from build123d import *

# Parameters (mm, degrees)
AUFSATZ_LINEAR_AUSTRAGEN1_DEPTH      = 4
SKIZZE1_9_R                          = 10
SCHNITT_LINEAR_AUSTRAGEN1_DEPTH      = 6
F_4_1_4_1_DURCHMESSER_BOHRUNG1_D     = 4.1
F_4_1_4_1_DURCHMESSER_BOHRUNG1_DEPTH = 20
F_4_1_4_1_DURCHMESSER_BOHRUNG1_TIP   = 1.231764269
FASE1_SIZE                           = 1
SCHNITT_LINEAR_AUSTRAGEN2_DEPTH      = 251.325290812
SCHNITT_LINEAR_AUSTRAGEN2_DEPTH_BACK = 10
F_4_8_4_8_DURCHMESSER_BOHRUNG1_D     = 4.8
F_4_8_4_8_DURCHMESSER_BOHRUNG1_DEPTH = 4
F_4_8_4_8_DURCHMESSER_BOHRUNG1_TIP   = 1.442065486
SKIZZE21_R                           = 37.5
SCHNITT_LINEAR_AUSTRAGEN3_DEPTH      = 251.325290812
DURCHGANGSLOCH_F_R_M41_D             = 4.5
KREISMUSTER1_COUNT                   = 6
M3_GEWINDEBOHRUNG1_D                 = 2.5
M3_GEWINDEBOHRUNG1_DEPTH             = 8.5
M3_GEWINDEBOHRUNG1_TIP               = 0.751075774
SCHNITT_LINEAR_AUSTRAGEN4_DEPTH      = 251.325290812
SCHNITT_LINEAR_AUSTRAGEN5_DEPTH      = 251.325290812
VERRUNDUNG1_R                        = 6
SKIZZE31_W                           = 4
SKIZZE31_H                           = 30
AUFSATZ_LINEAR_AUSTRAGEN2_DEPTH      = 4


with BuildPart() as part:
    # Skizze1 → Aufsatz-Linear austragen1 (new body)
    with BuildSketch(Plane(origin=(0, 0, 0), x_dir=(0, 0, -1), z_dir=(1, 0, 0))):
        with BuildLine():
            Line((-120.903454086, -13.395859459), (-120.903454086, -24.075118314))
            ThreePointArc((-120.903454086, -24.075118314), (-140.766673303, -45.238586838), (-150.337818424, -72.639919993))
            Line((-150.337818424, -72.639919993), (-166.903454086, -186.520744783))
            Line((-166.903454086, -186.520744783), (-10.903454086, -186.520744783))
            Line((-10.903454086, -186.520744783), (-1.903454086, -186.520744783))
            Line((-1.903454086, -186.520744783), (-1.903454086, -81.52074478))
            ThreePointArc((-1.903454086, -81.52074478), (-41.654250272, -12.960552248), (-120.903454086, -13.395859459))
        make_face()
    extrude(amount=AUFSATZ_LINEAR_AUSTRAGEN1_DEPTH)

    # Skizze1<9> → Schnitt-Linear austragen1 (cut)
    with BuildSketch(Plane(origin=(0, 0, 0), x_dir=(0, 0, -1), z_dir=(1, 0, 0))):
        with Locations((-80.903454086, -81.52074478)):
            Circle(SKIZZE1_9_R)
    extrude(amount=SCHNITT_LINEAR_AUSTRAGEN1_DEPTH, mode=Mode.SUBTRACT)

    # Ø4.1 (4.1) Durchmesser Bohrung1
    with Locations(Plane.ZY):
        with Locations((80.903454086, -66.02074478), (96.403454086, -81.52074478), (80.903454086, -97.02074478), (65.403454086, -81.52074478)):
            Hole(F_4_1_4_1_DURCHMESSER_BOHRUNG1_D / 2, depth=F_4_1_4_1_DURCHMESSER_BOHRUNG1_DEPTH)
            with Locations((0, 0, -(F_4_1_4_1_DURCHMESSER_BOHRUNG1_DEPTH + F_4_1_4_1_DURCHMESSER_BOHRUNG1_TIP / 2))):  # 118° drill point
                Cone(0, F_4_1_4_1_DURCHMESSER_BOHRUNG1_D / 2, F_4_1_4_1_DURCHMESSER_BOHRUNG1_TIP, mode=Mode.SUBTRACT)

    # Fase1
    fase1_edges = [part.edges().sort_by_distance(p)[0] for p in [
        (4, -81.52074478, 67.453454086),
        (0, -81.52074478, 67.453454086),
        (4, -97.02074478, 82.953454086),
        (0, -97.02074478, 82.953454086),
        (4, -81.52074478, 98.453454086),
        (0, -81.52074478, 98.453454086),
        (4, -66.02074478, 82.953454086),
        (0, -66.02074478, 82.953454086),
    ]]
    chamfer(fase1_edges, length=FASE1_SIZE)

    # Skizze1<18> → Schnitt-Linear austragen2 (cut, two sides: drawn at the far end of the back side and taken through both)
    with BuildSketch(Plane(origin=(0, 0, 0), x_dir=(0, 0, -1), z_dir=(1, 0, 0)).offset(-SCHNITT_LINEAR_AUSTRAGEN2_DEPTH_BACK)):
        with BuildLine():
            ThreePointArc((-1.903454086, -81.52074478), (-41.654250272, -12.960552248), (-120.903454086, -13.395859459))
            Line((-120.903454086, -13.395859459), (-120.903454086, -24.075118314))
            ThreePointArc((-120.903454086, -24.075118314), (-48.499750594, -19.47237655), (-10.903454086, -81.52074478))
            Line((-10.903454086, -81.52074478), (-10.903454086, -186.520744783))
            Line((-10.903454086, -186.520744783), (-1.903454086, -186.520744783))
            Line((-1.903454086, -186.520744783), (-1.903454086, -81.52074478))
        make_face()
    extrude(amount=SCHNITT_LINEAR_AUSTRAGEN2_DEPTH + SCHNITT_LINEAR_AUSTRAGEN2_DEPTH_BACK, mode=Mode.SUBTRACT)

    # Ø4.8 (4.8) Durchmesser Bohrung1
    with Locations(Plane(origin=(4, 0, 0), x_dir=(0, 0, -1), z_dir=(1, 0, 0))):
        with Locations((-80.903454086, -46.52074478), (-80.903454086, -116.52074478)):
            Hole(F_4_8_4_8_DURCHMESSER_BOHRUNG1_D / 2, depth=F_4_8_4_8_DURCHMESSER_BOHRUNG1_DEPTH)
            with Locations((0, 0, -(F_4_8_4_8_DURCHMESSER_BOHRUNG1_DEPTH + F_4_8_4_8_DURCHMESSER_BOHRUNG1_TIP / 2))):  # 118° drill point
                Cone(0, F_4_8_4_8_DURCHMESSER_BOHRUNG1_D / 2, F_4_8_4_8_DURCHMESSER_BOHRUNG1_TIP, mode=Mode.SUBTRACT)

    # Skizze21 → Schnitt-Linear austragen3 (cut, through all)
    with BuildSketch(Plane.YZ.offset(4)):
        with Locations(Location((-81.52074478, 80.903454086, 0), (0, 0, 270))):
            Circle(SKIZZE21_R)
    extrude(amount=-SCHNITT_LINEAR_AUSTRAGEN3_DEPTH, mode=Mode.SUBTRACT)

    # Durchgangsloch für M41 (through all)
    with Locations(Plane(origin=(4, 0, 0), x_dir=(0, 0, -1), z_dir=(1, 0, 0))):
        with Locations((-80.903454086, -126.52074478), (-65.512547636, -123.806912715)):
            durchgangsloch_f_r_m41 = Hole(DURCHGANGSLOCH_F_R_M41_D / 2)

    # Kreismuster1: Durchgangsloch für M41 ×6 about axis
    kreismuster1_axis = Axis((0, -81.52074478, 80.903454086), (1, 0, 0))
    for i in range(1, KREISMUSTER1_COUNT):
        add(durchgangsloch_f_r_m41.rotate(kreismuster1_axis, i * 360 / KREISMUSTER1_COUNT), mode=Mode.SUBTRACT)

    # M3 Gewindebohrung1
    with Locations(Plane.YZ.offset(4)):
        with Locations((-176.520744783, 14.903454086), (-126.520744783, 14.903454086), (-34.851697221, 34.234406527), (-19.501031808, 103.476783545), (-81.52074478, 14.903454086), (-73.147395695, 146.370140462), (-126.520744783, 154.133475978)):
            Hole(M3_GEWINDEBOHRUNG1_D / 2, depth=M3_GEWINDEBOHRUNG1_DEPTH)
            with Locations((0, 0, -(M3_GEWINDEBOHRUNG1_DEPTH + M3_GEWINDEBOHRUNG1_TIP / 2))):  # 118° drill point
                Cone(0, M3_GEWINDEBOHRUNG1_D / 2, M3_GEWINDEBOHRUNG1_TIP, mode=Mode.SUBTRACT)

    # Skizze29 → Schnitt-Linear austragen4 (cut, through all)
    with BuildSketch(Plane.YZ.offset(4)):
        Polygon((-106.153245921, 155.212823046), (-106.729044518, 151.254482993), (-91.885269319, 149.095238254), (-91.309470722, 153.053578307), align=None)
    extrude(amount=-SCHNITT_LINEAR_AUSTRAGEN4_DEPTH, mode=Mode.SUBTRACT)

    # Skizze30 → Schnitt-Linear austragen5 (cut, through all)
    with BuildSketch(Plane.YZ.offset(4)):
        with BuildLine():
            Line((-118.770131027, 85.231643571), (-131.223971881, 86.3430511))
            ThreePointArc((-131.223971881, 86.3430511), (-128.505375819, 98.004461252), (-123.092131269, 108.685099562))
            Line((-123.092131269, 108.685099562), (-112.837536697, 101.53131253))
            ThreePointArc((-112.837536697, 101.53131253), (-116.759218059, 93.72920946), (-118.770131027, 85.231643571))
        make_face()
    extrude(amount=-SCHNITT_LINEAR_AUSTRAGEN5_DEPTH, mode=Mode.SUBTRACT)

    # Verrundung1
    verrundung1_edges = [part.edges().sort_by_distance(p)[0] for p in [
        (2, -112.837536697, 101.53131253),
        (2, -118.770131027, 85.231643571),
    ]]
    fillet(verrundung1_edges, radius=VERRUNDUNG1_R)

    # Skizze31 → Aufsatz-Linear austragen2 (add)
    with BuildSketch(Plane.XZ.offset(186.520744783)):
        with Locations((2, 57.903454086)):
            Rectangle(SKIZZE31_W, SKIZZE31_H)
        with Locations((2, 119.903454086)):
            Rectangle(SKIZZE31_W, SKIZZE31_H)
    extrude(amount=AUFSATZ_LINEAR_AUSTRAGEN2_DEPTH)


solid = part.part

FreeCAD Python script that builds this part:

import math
import FreeCAD as App
import Part
import Sketcher
Q = App.Units.Quantity


def edges_at(feature, points):
    """Names of the edges that pass closest to the given points."""
    edges = feature.Shape.Edges
    near = lambda p: min(range(len(edges)), key=lambda i: edges[i].distToShape(Part.Vertex(*p))[0])
    return sorted({f"Edge{near(p) + 1}" for p in points})

doc = App.newDocument("Part")
body = doc.addObject("PartDesign::Body", "Body")

# Sketch on YZ plane
sketch1 = doc.addObject("Sketcher::SketchObject", "Sketch")
body.addObject(sketch1)
sketch1.AttachmentSupport = (doc.YZ_Plane, [""])
sketch1.MapMode = "FlatFace"
sketch1.addGeometry([
    Part.LineSegment(App.Vector(-13, 121, 0), App.Vector(-24, 121, 0)),  # 0
    Part.ArcOfCircle(Part.Circle(App.Vector(-82, 81, 0), App.Vector(0, 0, 1), 70), math.radians(35), math.radians(83)),  # 1
    Part.LineSegment(App.Vector(-73, 150, 0), App.Vector(-187, 167, 0)),  # 2
    Part.LineSegment(App.Vector(-187, 167, 0), App.Vector(-187, 2, 0)),  # 3
    Part.LineSegment(App.Vector(-187, 2, 0), App.Vector(-82, 2, 0)),  # 4
    Part.ArcOfCircle(Part.Circle(App.Vector(-82, 81, 0), App.Vector(0, 0, 1), 79), math.radians(-90), math.radians(30)),  # 5
], False)
sketch1.addConstraint([
    Sketcher.Constraint("Coincident", 0, 2, 1, 1),
    Sketcher.Constraint("Coincident", 1, 2, 2, 1),
    Sketcher.Constraint("Coincident", 2, 2, 3, 1),
    Sketcher.Constraint("Coincident", 3, 2, 4, 1),
    Sketcher.Constraint("Tangent", 4, 2, 5, 1),
    Sketcher.Constraint("Coincident", 5, 2, 0, 1),
    Sketcher.Constraint("Horizontal", 0),
    Sketcher.Constraint("Vertical", 3),
    Sketcher.Constraint("Horizontal", 4),
    Sketcher.Constraint("Coincident", 5, 3, 1, 3),
    Sketcher.Constraint("Radius", 1, Q("70 mm")),
    Sketcher.Constraint("Radius", 5, Q("79 mm")),
    Sketcher.Constraint("DistanceX", 4, 1, 4, 2, Q("105 mm")),
    Sketcher.Constraint("DistanceY", 3, 2, 3, 1, Q("165 mm")),
    Sketcher.Constraint("DistanceY", 5, 3, 0, 2, Q("40 mm")),
    Sketcher.Constraint("DistanceX", 1, 2, 0, 2, Q("48.564802 mm")),
    Sketcher.Constraint("DistanceX", 0, 2, -1, 1, Q("24.075118 mm")),
    Sketcher.Constraint("DistanceY", -1, 1, 1, 2, Q("150.337818 mm")),
])
pad1 = doc.addObject("PartDesign::Pad", "Pad")
body.addObject(pad1)
pad1.Profile = sketch1
pad1.Length = 4

# Sketch on YZ plane
sketch2 = doc.addObject("Sketcher::SketchObject", "Sketch001")
body.addObject(sketch2)
sketch2.AttachmentSupport = (doc.YZ_Plane, [""])
sketch2.MapMode = "FlatFace"
sketch2.addGeometry(Part.Circle(App.Vector(-82, 81, 0), App.Vector(0, 0, 1), 10), False)
sketch2.addConstraint([
    Sketcher.Constraint("Diameter", 0, Q("20 mm")),
    Sketcher.Constraint("DistanceX", 0, 3, -1, 1, Q("81.520745 mm")),
    Sketcher.Constraint("DistanceY", -1, 1, 0, 3, Q("80.903454 mm")),
])
pocket1 = doc.addObject("PartDesign::Pocket", "Pocket")
body.addObject(pocket1)
pocket1.Profile = sketch2
pocket1.Length = 6
pocket1.Reversed = True

# Sketch on YZ plane
sketch3 = doc.addObject("Sketcher::SketchObject", "Sketch002")
body.addObject(sketch3)
sketch3.AttachmentSupport = (doc.YZ_Plane, [""])
sketch3.MapMode = "FlatFace"
sketch3.addGeometry([
    Part.Circle(App.Vector(-66, 80.9, 0), App.Vector(0, 0, 1), 2),
    Part.Circle(App.Vector(-81.5, 96.4, 0), App.Vector(0, 0, 1), 2),
    Part.Circle(App.Vector(-97, 80.9, 0), App.Vector(0, 0, 1), 2),
    Part.Circle(App.Vector(-81.5, 65.4, 0), App.Vector(0, 0, 1), 2),
], False)
sketch3.addConstraint([
    Sketcher.Constraint("Equal", 0, 1),
    Sketcher.Constraint("Equal", 1, 2),
    Sketcher.Constraint("Equal", 2, 3),
    Sketcher.Constraint("Horizontal", 0, 3, 2, 3),
    Sketcher.Constraint("Vertical", 1, 3, 3, 3),
    Sketcher.Constraint("Diameter", 0, Q("4.1 mm")),
    Sketcher.Constraint("DistanceX", 2, 3, 0, 3, Q("31 mm")),
    Sketcher.Constraint("DistanceY", 3, 3, 1, 3, Q("31 mm")),
    Sketcher.Constraint("DistanceX", 1, 3, 0, 3, Q("15.5 mm")),
    Sketcher.Constraint("DistanceY", 0, 3, 1, 3, Q("15.5 mm")),
    Sketcher.Constraint("DistanceX", 0, 3, -1, 1, Q("66.020745 mm")),
    Sketcher.Constraint("DistanceY", -1, 1, 0, 3, Q("80.903454 mm")),
])
doc.recompute()
hole = doc.addObject("PartDesign::Hole", "Hole")
body.addObject(hole)
hole.Profile = sketch3
hole.ThreadType = "None"
hole.Diameter = 4.1
hole.DepthType = "Dimension"
hole.Depth = 20
hole.DrillPoint = "Angled"
hole.DrillPointAngle = 118
hole.Reversed = True
doc.recompute()

chamfer = doc.addObject("PartDesign::Chamfer", "Chamfer")
body.addObject(chamfer)
chamfer.Base = (hole, edges_at(hole, [
    (4, -81.521, 67.453),
    (0, -81.521, 67.453),
    (4, -97.021, 82.953),
    (0, -97.021, 82.953),
    (4, -81.521, 98.453),
    (0, -81.521, 98.453),
    (4, -66.021, 82.953),
    (0, -66.021, 82.953),
]))
chamfer.Size = 1

# Sketch on YZ plane
sketch4 = doc.addObject("Sketcher::SketchObject", "Sketch003")
body.addObject(sketch4)
sketch4.AttachmentSupport = (doc.YZ_Plane, [""])
sketch4.MapMode = "FlatFace"
sketch4.addGeometry([
    Part.ArcOfCircle(Part.Circle(App.Vector(-82, 81, 0), App.Vector(0, 0, 1), 79), math.radians(-90), math.radians(30)),  # 0
    Part.LineSegment(App.Vector(-13, 121, 0), App.Vector(-24, 121, 0)),  # 1
    Part.ArcOfCircle(Part.Circle(App.Vector(-82, 81, 0), App.Vector(0, 0, 1), 70), math.radians(-90), math.radians(35)),  # 2
    Part.LineSegment(App.Vector(-82, 11, 0), App.Vector(-187, 11, 0)),  # 3
    Part.LineSegment(App.Vector(-187, 11, 0), App.Vector(-187, 2, 0)),  # 4
    Part.LineSegment(App.Vector(-187, 2, 0), App.Vector(-82, 2, 0)),  # 5
], False)
sketch4.addConstraint([
    Sketcher.Constraint("Coincident", 0, 2, 1, 1),
    Sketcher.Constraint("Coincident", 1, 2, 2, 2),
    Sketcher.Constraint("Tangent", 2, 1, 3, 1),
    Sketcher.Constraint("Coincident", 3, 2, 4, 1),
    Sketcher.Constraint("Coincident", 4, 2, 5, 1),
    Sketcher.Constraint("Tangent", 5, 2, 0, 1),
    Sketcher.Constraint("Horizontal", 1),
    Sketcher.Constraint("Horizontal", 3),
    Sketcher.Constraint("Vertical", 4),
    Sketcher.Constraint("Horizontal", 5),
    Sketcher.Constraint("Coincident", 2, 3, 0, 3),
    Sketcher.Constraint("Radius", 0, Q("79 mm")),
    Sketcher.Constraint("Radius", 2, Q("70 mm")),
    Sketcher.Constraint("DistanceX", 3, 2, 3, 1, Q("105 mm")),
    Sketcher.Constraint("DistanceY", 0, 3, 0, 2, Q("40 mm")),
    Sketcher.Constraint("DistanceX", 0, 2, -1, 1, Q("13.395859 mm")),
    Sketcher.Constraint("DistanceY", -1, 1, 0, 3, Q("80.903454 mm")),
])
pocket2 = doc.addObject("PartDesign::Pocket", "Pocket001")
body.addObject(pocket2)
pocket2.Profile = sketch4
pocket2.Type = "ThroughAll"
pocket2.Midplane = True

# Sketch on YZ plane
sketch5 = doc.addObject("Sketcher::SketchObject", "Sketch004")
body.addObject(sketch5)
sketch5.AttachmentSupport = (doc.YZ_Plane, [""])
sketch5.MapMode = "FlatFace"
sketch5.AttachmentOffset = App.Placement(App.Vector(0, 0, 4), App.Rotation())
sketch5.addGeometry([
    Part.Circle(App.Vector(-46.5, 80.9, 0), App.Vector(0, 0, 1), 2.4),
    Part.Circle(App.Vector(-116.5, 80.9, 0), App.Vector(0, 0, 1), 2.4),
], False)
sketch5.addConstraint([
    Sketcher.Constraint("Equal", 0, 1),
    Sketcher.Constraint("Horizontal", 0, 3, 1, 3),
    Sketcher.Constraint("Diameter", 0, Q("4.8 mm")),
    Sketcher.Constraint("DistanceX", 1, 3, 0, 3, Q("70 mm")),
    Sketcher.Constraint("DistanceX", 0, 3, -1, 1, Q("46.520745 mm")),
    Sketcher.Constraint("DistanceY", -1, 1, 0, 3, Q("80.903454 mm")),
])
doc.recompute()
hole2 = doc.addObject("PartDesign::Hole", "Hole001")
body.addObject(hole2)
hole2.Profile = sketch5
hole2.ThreadType = "None"
hole2.Diameter = 4.8
hole2.DepthType = "Dimension"
hole2.Depth = 4
hole2.DrillPoint = "Angled"
hole2.DrillPointAngle = 118

# Sketch on YZ plane
sketch6 = doc.addObject("Sketcher::SketchObject", "Sketch005")
body.addObject(sketch6)
sketch6.AttachmentSupport = (doc.YZ_Plane, [""])
sketch6.MapMode = "FlatFace"
sketch6.AttachmentOffset = App.Placement(App.Vector(0, 0, 4), App.Rotation())
sketch6.addGeometry(Part.Circle(App.Vector(-82, 81, 0), App.Vector(0, 0, 1), 38), False)
sketch6.addConstraint([
    Sketcher.Constraint("Diameter", 0, Q("75 mm")),
    Sketcher.Constraint("DistanceX", 0, 3, -1, 1, Q("81.520745 mm")),
    Sketcher.Constraint("DistanceY", -1, 1, 0, 3, Q("80.903454 mm")),
])
pocket3 = doc.addObject("PartDesign::Pocket", "Pocket002")
body.addObject(pocket3)
pocket3.Profile = sketch6
pocket3.Type = "ThroughAll"

# Sketch on YZ plane
sketch7 = doc.addObject("Sketcher::SketchObject", "Sketch006")
body.addObject(sketch7)
sketch7.AttachmentSupport = (doc.YZ_Plane, [""])
sketch7.MapMode = "FlatFace"
sketch7.AttachmentOffset = App.Placement(App.Vector(0, 0, 4), App.Rotation())
sketch7.addGeometry([
    Part.Circle(App.Vector(-126.5, 80.9, 0), App.Vector(0, 0, 1), 2.2),
    Part.Circle(App.Vector(-123.8, 65.5, 0), App.Vector(0, 0, 1), 2.2),
], False)
sketch7.addConstraint([
    Sketcher.Constraint("Equal", 0, 1),
    Sketcher.Constraint("Diameter", 0, Q("4.5 mm")),
    Sketcher.Constraint("DistanceX", 0, 3, -1, 1, Q("126.520745 mm")),
    Sketcher.Constraint("DistanceY", -1, 1, 0, 3, Q("80.903454 mm")),
    Sketcher.Constraint("DistanceX", 1, 3, -1, 1, Q("123.806913 mm")),
    Sketcher.Constraint("DistanceY", -1, 1, 1, 3, Q("65.512548 mm")),
])
doc.recompute()
hole3 = doc.addObject("PartDesign::Hole", "Hole002")
body.addObject(hole3)
hole3.Profile = sketch7
hole3.ThreadType = "None"
hole3.Diameter = 4.5
hole3.DepthType = "ThroughAll"
doc.recompute()

datumline = doc.addObject("PartDesign::Line", "DatumLine")
body.addObject(datumline)
datumline.Placement = App.Placement(App.Vector(0, -81.520745, 80.903454), App.Rotation(App.Vector(0, 0, 1), App.Vector(1, 0, 0)))
polarpattern = doc.addObject("PartDesign::PolarPattern", "PolarPattern")
body.addObject(polarpattern)
polarpattern.Originals = [hole3]
polarpattern.Axis = (datumline, [""])
polarpattern.Angle = 360
polarpattern.Occurrences = 6
body.Tip = polarpattern

# Sketch on YZ plane
sketch8 = doc.addObject("Sketcher::SketchObject", "Sketch007")
body.addObject(sketch8)
sketch8.AttachmentSupport = (doc.YZ_Plane, [""])
sketch8.MapMode = "FlatFace"
sketch8.AttachmentOffset = App.Placement(App.Vector(0, 0, 4), App.Rotation())
sketch8.addGeometry([
    Part.Circle(App.Vector(-176.5, 14.9, 0), App.Vector(0, 0, 1), 1.2),  # 0
    Part.Circle(App.Vector(-126.5, 14.9, 0), App.Vector(0, 0, 1), 1.2),  # 1
    Part.Circle(App.Vector(-34.9, 34.2, 0), App.Vector(0, 0, 1), 1.2),  # 2
    Part.Circle(App.Vector(-19.5, 103.5, 0), App.Vector(0, 0, 1), 1.2),  # 3
    Part.Circle(App.Vector(-81.5, 14.9, 0), App.Vector(0, 0, 1), 1.2),  # 4
    Part.Circle(App.Vector(-73.1, 146.4, 0), App.Vector(0, 0, 1), 1.2),  # 5
    Part.Circle(App.Vector(-126.5, 154.1, 0), App.Vector(0, 0, 1), 1.2),  # 6
], False)
sketch8.addConstraint([
    Sketcher.Constraint("Equal", 0, 1),
    Sketcher.Constraint("Equal", 1, 2),
    Sketcher.Constraint("Equal", 2, 3),
    Sketcher.Constraint("Equal", 3, 4),
    Sketcher.Constraint("Equal", 4, 5),
    Sketcher.Constraint("Equal", 5, 6),
    Sketcher.Constraint("Horizontal", 0, 3, 1, 3),
    Sketcher.Constraint("Horizontal", 1, 3, 4, 3),
    Sketcher.Constraint("Vertical", 1, 3, 6, 3),
    Sketcher.Constraint("Diameter", 0, Q("2.5 mm")),
    Sketcher.Constraint("DistanceX", 0, 3, 1, 3, Q("50 mm")),
    Sketcher.Constraint("DistanceX", 1, 3, 4, 3, Q("45 mm")),
    Sketcher.Constraint("DistanceX", 5, 3, 2, 3, Q("38.295698 mm")),
    Sketcher.Constraint("DistanceX", 3, 3, -1, 1, Q("19.501032 mm")),
    Sketcher.Constraint("DistanceY", -1, 1, 5, 3, Q("146.37014 mm")),
    Sketcher.Constraint("DistanceY", 1, 3, 3, 3, Q("88.573329 mm")),
    Sketcher.Constraint("DistanceX", 4, 3, 5, 3, Q("8.373349 mm")),
    Sketcher.Constraint("DistanceY", 1, 3, 6, 3, Q("139.230022 mm")),
    Sketcher.Constraint("DistanceX", 0, 3, -1, 1, Q("176.520745 mm")),
    Sketcher.Constraint("DistanceY", -1, 1, 0, 3, Q("14.903454 mm")),
    Sketcher.Constraint("DistanceY", -1, 1, 2, 3, Q("34.234407 mm")),
])
doc.recompute()
hole4 = doc.addObject("PartDesign::Hole", "Hole003")
body.addObject(hole4)
hole4.Profile = sketch8
hole4.ThreadType = "None"
hole4.Diameter = 2.5
hole4.DepthType = "Dimension"
hole4.Depth = 8.5
hole4.DrillPoint = "Angled"
hole4.DrillPointAngle = 118

# Sketch on YZ plane
sketch9 = doc.addObject("Sketcher::SketchObject", "Sketch008")
body.addObject(sketch9)
sketch9.AttachmentSupport = (doc.YZ_Plane, [""])
sketch9.MapMode = "FlatFace"
sketch9.AttachmentOffset = App.Placement(App.Vector(0, 0, 4), App.Rotation())
sketch9.addGeometry([
    Part.LineSegment(App.Vector(-106.2, 155.2, 0), App.Vector(-106.7, 151.3, 0)),
    Part.LineSegment(App.Vector(-106.7, 151.3, 0), App.Vector(-91.9, 149.1, 0)),
    Part.LineSegment(App.Vector(-91.9, 149.1, 0), App.Vector(-91.3, 153.1, 0)),
    Part.LineSegment(App.Vector(-91.3, 153.1, 0), App.Vector(-106.2, 155.2, 0)),
], False)
sketch9.addConstraint([
    Sketcher.Constraint("Coincident", 0, 2, 1, 1),
    Sketcher.Constraint("Coincident", 1, 2, 2, 1),
    Sketcher.Constraint("Coincident", 2, 2, 3, 1),
    Sketcher.Constraint("Coincident", 3, 2, 0, 1),
    Sketcher.Constraint("Perpendicular", 0, 1),
    Sketcher.Constraint("Perpendicular", 1, 2),
    Sketcher.Constraint("Perpendicular", 2, 3),
    Sketcher.Constraint("Distance", 0, Q("4 mm")),
    Sketcher.Constraint("Distance", 1, Q("15 mm")),
    Sketcher.Constraint("DistanceX", 1, 2, 2, 2, Q("0.575799 mm")),
    Sketcher.Constraint("DistanceX", 1, 2, -1, 1, Q("91.885269 mm")),
    Sketcher.Constraint("DistanceY", -1, 1, 1, 2, Q("149.095238 mm")),
])
pocket4 = doc.addObject("PartDesign::Pocket", "Pocket003")
body.addObject(pocket4)
pocket4.Profile = sketch9
pocket4.Type = "ThroughAll"

# Sketch on YZ plane
sketch10 = doc.addObject("Sketcher::SketchObject", "Sketch009")
body.addObject(sketch10)
sketch10.AttachmentSupport = (doc.YZ_Plane, [""])
sketch10.MapMode = "FlatFace"
sketch10.AttachmentOffset = App.Placement(App.Vector(0, 0, 4), App.Rotation())
sketch10.addGeometry([
    Part.LineSegment(App.Vector(-131, 86, 0), App.Vector(-119, 85, 0)),
    Part.ArcOfCircle(Part.Circle(App.Vector(-82, 81, 0), App.Vector(0, 0, 1), 38), math.radians(147), math.radians(173)),
    Part.LineSegment(App.Vector(-113, 102, 0), App.Vector(-123, 109, 0)),
    Part.ArcOfCircle(Part.Circle(App.Vector(-82, 81, 0), App.Vector(0, 0, 1), 50), math.radians(146), math.radians(174)),
], False)
sketch10.addConstraint([
    Sketcher.Constraint("Coincident", 0, 2, 1, 2),
    Sketcher.Constraint("Coincident", 1, 1, 2, 1),
    Sketcher.Constraint("Coincident", 2, 2, 3, 1),
    Sketcher.Constraint("Coincident", 3, 2, 0, 1),
    Sketcher.Constraint("Coincident", 3, 3, 1, 3),
    Sketcher.Constraint("Equal", 0, 2),
    Sketcher.Constraint("Radius", 3, Q("50 mm")),
    Sketcher.Constraint("Radius", 1, Q("37.5 mm")),
    Sketcher.Constraint("DistanceX", 2, 2, 0, 2, Q("4.322 mm")),
    Sketcher.Constraint("DistanceY", -1, 1, 2, 2, Q("108.6851 mm")),
    Sketcher.Constraint("DistanceX", 0, 2, -1, 1, Q("118.770131 mm")),
    Sketcher.Constraint("DistanceX", 3, 2, -1, 1, Q("131.223972 mm")),
    Sketcher.Constraint("DistanceY", -1, 1, 3, 2, Q("86.343051 mm")),
])
pocket5 = doc.addObject("PartDesign::Pocket", "Pocket004")
body.addObject(pocket5)
pocket5.Profile = sketch10
pocket5.Type = "ThroughAll"
doc.recompute()

fillet = doc.addObject("PartDesign::Fillet", "Fillet")
body.addObject(fillet)
fillet.Base = (pocket5, edges_at(pocket5, [(2, -112.838, 101.531), (2, -118.77, 85.232)]))
fillet.Radius = 6

# Sketch on XZ plane
sketch11 = doc.addObject("Sketcher::SketchObject", "Sketch010")
body.addObject(sketch11)
sketch11.AttachmentSupport = (doc.XZ_Plane, [""])
sketch11.MapMode = "FlatFace"
sketch11.AttachmentOffset = App.Placement(App.Vector(0, 0, 186.520745), App.Rotation())
sketch11.addGeometry([
    Part.LineSegment(App.Vector(0, 72.9, 0), App.Vector(0, 42.9, 0)),  # 0
    Part.LineSegment(App.Vector(0, 42.9, 0), App.Vector(4, 42.9, 0)),  # 1
    Part.LineSegment(App.Vector(4, 42.9, 0), App.Vector(4, 72.9, 0)),  # 2
    Part.LineSegment(App.Vector(4, 72.9, 0), App.Vector(0, 72.9, 0)),  # 3
    Part.LineSegment(App.Vector(0, 134.9, 0), App.Vector(0, 104.9, 0)),  # 4
    Part.LineSegment(App.Vector(0, 104.9, 0), App.Vector(4, 104.9, 0)),  # 5
    Part.LineSegment(App.Vector(4, 104.9, 0), App.Vector(4, 134.9, 0)),  # 6
    Part.LineSegment(App.Vector(4, 134.9, 0), App.Vector(0, 134.9, 0)),  # 7
], False)
sketch11.addConstraint([
    Sketcher.Constraint("Coincident", 0, 2, 1, 1),
    Sketcher.Constraint("Coincident", 1, 2, 2, 1),
    Sketcher.Constraint("Coincident", 2, 2, 3, 1),
    Sketcher.Constraint("Coincident", 3, 2, 0, 1),
    Sketcher.Constraint("Coincident", 4, 2, 5, 1),
    Sketcher.Constraint("Coincident", 5, 2, 6, 1),
    Sketcher.Constraint("Coincident", 6, 2, 7, 1),
    Sketcher.Constraint("Coincident", 7, 2, 4, 1),
    Sketcher.Constraint("Vertical", 0),
    Sketcher.Constraint("Horizontal", 1),
    Sketcher.Constraint("Vertical", 2),
    Sketcher.Constraint("Horizontal", 3),
    Sketcher.Constraint("Vertical", 4),
    Sketcher.Constraint("Horizontal", 5),
    Sketcher.Constraint("Vertical", 6),
    Sketcher.Constraint("Horizontal", 7),
    Sketcher.Constraint("PointOnObject", 0, 2, -2),
    Sketcher.Constraint("PointOnObject", 4, 2, -2),
    Sketcher.Constraint("Vertical", 2, 2, 5, 2),
    Sketcher.Constraint("Equal", 2, 4),
    Sketcher.Constraint("DistanceX", 1, 1, 1, 2, Q("4 mm")),
    Sketcher.Constraint("DistanceY", 0, 2, 0, 1, Q("30 mm")),
    Sketcher.Constraint("DistanceY", 3, 2, 4, 2, Q("32 mm")),
    Sketcher.Constraint("DistanceY", -1, 1, 0, 2, Q("42.903454 mm")),
])
pad2 = doc.addObject("PartDesign::Pad", "Pad001")
body.addObject(pad2)
pad2.Profile = sketch11
pad2.Length = 4

doc.recompute()
